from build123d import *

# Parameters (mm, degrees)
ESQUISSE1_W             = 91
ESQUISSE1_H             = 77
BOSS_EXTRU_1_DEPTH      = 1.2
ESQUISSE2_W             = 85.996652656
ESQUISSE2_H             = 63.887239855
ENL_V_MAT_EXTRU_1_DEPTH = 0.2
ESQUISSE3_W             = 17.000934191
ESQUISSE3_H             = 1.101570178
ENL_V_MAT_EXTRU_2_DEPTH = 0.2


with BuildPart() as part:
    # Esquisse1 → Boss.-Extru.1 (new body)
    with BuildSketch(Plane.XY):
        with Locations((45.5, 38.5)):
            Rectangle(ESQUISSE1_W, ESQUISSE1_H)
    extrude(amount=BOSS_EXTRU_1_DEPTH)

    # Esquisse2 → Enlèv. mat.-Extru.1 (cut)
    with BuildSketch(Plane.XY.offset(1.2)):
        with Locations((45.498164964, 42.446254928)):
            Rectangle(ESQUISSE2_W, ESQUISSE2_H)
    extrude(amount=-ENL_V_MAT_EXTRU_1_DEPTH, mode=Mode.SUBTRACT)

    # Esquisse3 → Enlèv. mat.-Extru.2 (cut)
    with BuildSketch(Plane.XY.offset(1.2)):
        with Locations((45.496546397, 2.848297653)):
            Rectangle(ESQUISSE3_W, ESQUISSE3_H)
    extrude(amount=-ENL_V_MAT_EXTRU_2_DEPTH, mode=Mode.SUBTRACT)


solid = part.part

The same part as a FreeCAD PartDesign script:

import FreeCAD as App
import Part
import Sketcher
from FreeCAD import Vector

doc = App.newDocument("Part")
params = doc.addObject("Spreadsheet::Sheet", "Params")
for row, (alias, value) in enumerate([
    ("sketch1_width", "91 mm"),
    ("sketch1_height", "77 mm"),
    ("pad1_length", "1.2 mm"),
    ("pocket1_length", "0.2 mm"),
    ("pocket2_length", "0.2 mm"),
], start=1):
    params.set(f"A{row}", alias)
    params.set(f"B{row}", "=" + value)
    params.setAlias(f"B{row}", alias)

body = doc.addObject("PartDesign::Body", "Body")

# Sketch on XY plane
sketch1 = body.newObject("Sketcher::SketchObject", "Sketch")
sketch1.AttachmentSupport = (doc.getObject("XY_Plane"), [""])
sketch1.MapMode = "FlatFace"
sketch1.addGeometry(Part.LineSegment(Vector(0, 77, 0), Vector(0, 0, 0)), False)
sketch1.addGeometry(Part.LineSegment(Vector(0, 0, 0), Vector(91, 0, 0)), False)
sketch1.addGeometry(Part.LineSegment(Vector(91, 0, 0), Vector(91, 77, 0)), False)
sketch1.addGeometry(Part.LineSegment(Vector(91, 77, 0), Vector(0, 77, 0)), False)
sketch1.addConstraint(Sketcher.Constraint("Coincident", 0, 2, 1, 1))
sketch1.addConstraint(Sketcher.Constraint("Coincident", 1, 2, 2, 1))
sketch1.addConstraint(Sketcher.Constraint("Coincident", 2, 2, 3, 1))
sketch1.addConstraint(Sketcher.Constraint("Coincident", 3, 2, 0, 1))
sketch1.addConstraint(Sketcher.Constraint("Vertical", 0))
sketch1.addConstraint(Sketcher.Constraint("Horizontal", 1))
sketch1.addConstraint(Sketcher.Constraint("Vertical", 2))
sketch1.addConstraint(Sketcher.Constraint("Horizontal", 3))
sketch1.addConstraint(Sketcher.Constraint("Coincident", 0, 2, -1, 1))
sketch1.addConstraint(Sketcher.Constraint("DistanceX", 1, 1, 1, 2, 91.0))
sketch1.addConstraint(Sketcher.Constraint("DistanceY", 0, 2, 0, 1, 77.0))
sketch1.setExpression("Constraints[9]", "Params.sketch1_width")
sketch1.setExpression("Constraints[10]", "Params.sketch1_height")
pad1 = body.newObject("PartDesign::Pad", "Pad")
pad1.Profile = sketch1
pad1.setExpression("Length", "Params.pad1_length")

# Sketch on XY plane
sketch2 = body.newObject("Sketcher::SketchObject", "Sketch001")
sketch2.AttachmentSupport = (doc.getObject("XY_Plane"), [""])
sketch2.MapMode = "FlatFace"
sketch2.AttachmentOffset = App.Placement(Vector(0, 0, 1.2), App.Rotation())
sketch2.addGeometry(Part.LineSegment(Vector(2.499839, 74.389875, 0), Vector(2.499839, 10.502635, 0)), False)
sketch2.addGeometry(Part.LineSegment(Vector(2.499839, 10.502635, 0), Vector(88.496491, 10.502635, 0)), False)
sketch2.addGeometry(Part.LineSegment(Vector(88.496491, 10.502635, 0), Vector(88.496491, 74.389875, 0)), False)
sketch2.addGeometry(Part.LineSegment(Vector(88.496491, 74.389875, 0), Vector(2.499839, 74.389875, 0)), False)
sketch2.addConstraint(Sketcher.Constraint("Coincident", 0, 2, 1, 1))
sketch2.addConstraint(Sketcher.Constraint("Coincident", 1, 2, 2, 1))
sketch2.addConstraint(Sketcher.Constraint("Coincident", 2, 2, 3, 1))
sketch2.addConstraint(Sketcher.Constraint("Coincident", 3, 2, 0, 1))
sketch2.addConstraint(Sketcher.Constraint("Vertical", 0))
sketch2.addConstraint(Sketcher.Constraint("Horizontal", 1))
sketch2.addConstraint(Sketcher.Constraint("Vertical", 2))
sketch2.addConstraint(Sketcher.Constraint("Horizontal", 3))
sketch2.addConstraint(Sketcher.Constraint("DistanceY", 0, 2, 0, 1, 63.88724))
sketch2.addConstraint(Sketcher.Constraint("DistanceX", 1, 1, 1, 2, 85.996653))
sketch2.addConstraint(Sketcher.Constraint("DistanceX", -1, 1, 0, 2, 2.499839))
sketch2.addConstraint(Sketcher.Constraint("DistanceY", -1, 1, 0, 2, 10.502635))
pocket1 = body.newObject("PartDesign::Pocket", "Pocket")
pocket1.Profile = sketch2
pocket1.setExpression("Length", "Params.pocket1_length")

# Sketch on XY plane
sketch3 = body.newObject("Sketcher::SketchObject", "Sketch002")
sketch3.AttachmentSupport = (doc.getObject("XY_Plane"), [""])
sketch3.MapMode = "FlatFace"
sketch3.AttachmentOffset = App.Placement(Vector(0, 0, 1.2), App.Rotation())
sketch3.addGeometry(Part.LineSegment(Vector(36.996079, 3.399083, 0), Vector(36.996079, 2.297513, 0)), False)
sketch3.addGeometry(Part.LineSegment(Vector(36.996079, 2.297513, 0), Vector(53.997013, 2.297513, 0)), False)
sketch3.addGeometry(Part.LineSegment(Vector(53.997013, 2.297513, 0), Vector(53.997013, 3.399083, 0)), False)
sketch3.addGeometry(Part.LineSegment(Vector(53.997013, 3.399083, 0), Vector(36.996079, 3.399083, 0)), False)
sketch3.addConstraint(Sketcher.Constraint("Coincident", 0, 2, 1, 1))
sketch3.addConstraint(Sketcher.Constraint("Coincident", 1, 2, 2, 1))
sketch3.addConstraint(Sketcher.Constraint("Coincident", 2, 2, 3, 1))
sketch3.addConstraint(Sketcher.Constraint("Coincident", 3, 2, 0, 1))
sketch3.addConstraint(Sketcher.Constraint("Vertical", 0))
sketch3.addConstraint(Sketcher.Constraint("Horizontal", 1))
sketch3.addConstraint(Sketcher.Constraint("Vertical", 2))
sketch3.addConstraint(Sketcher.Constraint("Horizontal", 3))
sketch3.addConstraint(Sketcher.Constraint("DistanceY", 0, 2, 0, 1, 1.10157))
sketch3.addConstraint(Sketcher.Constraint("DistanceX", 1, 1, 1, 2, 17.000934))
sketch3.addConstraint(Sketcher.Constraint("DistanceX", -1, 1, 0, 2, 36.996079))
sketch3.addConstraint(Sketcher.Constraint("DistanceY", -1, 1, 0, 2, 2.297513))
pocket2 = body.newObject("PartDesign::Pocket", "Pocket001")
pocket2.Profile = sketch3
pocket2.setExpression("Length", "Params.pocket2_length")

doc.recompute()
